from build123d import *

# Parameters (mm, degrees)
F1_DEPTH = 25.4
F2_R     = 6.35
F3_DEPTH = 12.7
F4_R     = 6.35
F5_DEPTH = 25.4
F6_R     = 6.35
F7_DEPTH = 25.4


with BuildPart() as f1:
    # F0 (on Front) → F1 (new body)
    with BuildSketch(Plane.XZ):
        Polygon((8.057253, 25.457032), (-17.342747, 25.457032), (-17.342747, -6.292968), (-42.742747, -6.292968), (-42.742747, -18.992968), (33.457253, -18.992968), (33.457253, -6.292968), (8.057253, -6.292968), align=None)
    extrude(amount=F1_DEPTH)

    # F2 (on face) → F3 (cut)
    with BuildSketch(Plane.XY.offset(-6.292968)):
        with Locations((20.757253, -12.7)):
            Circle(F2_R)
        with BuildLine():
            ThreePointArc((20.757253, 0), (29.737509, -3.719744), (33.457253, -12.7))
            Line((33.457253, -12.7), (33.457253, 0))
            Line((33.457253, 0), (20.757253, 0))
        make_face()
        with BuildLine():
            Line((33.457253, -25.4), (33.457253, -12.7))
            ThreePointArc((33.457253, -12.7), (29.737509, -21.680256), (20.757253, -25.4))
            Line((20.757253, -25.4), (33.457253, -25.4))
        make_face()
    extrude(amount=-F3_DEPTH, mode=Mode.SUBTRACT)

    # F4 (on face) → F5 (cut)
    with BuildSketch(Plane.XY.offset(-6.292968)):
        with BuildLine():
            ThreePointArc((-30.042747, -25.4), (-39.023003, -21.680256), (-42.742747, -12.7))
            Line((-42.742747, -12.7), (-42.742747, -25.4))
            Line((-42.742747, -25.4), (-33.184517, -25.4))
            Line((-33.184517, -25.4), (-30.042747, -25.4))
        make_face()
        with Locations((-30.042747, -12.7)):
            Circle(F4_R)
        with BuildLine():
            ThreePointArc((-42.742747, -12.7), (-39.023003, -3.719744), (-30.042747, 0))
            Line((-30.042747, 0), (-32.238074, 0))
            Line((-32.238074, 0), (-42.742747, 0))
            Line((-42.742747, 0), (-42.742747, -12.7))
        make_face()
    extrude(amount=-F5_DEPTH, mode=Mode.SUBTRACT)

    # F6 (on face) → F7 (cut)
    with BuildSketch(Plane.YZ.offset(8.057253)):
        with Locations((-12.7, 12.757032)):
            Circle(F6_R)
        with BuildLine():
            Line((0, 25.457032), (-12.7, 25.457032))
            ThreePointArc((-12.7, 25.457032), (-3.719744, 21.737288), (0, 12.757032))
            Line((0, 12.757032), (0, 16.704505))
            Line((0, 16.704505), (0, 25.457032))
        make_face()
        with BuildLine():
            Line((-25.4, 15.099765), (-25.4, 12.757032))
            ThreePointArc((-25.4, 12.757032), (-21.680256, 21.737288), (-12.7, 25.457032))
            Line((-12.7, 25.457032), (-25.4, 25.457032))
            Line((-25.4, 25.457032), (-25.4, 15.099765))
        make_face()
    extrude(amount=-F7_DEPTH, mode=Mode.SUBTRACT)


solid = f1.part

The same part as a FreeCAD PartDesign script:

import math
import FreeCAD as App
import Part
import Sketcher

V = App.Vector
Q = App.Units.Quantity

doc = App.newDocument("Part")
params = doc.addObject("Spreadsheet::Sheet", "Params")
for row, (alias, value) in enumerate([
    ("sketch1_width", "1 in"),
    ("sketch1_height", "0.5 in"),
    ("sketch1_height2", "1.25 in"),
    ("pad1_length", "1 in"),
    ("sketch2_diameter", "0.5 in"),
    ("sketch2_radius", "0.5 in"),
    ("pocket1_length", "0.5 in"),
    ("sketch3_diameter", "0.5 in"),
    ("sketch3_radius", "0.5 in"),
    ("pocket2_length", "1 in"),
    ("sketch4_diameter", "0.5 in"),
    ("sketch4_radius", "0.5 in"),
    ("pocket3_length", "1 in"),
], start=1):
    params.set(f"A{row}", alias)
    params.set(f"B{row}", "=" + value)
    params.setAlias(f"B{row}", alias)

body = doc.addObject("PartDesign::Body", "Body")

sketch1 = doc.addObject("Sketcher::SketchObject", "Sketch")
body.addObject(sketch1)
sketch1.AttachmentSupport = (doc.XZ_Plane, [""])
sketch1.MapMode = "FlatFace"
sketch1.addGeometry([
    Part.LineSegment(V(8, 25, 0), V(-17, 25, 0)),
    Part.LineSegment(V(-17, 25, 0), V(-17, -6, 0)),
    Part.LineSegment(V(-17, -6, 0), V(-43, -6, 0)),
    Part.LineSegment(V(-43, -6, 0), V(-43, -19, 0)),
    Part.LineSegment(V(-43, -19, 0), V(33, -19, 0)),
    Part.LineSegment(V(33, -19, 0), V(33, -6, 0)),
    Part.LineSegment(V(33, -6, 0), V(8, -6, 0)),
    Part.LineSegment(V(8, -6, 0), V(8, 25, 0)),
], False)
sketch1.addConstraint([
    Sketcher.Constraint("Coincident", 0, 2, 1, 1),
    Sketcher.Constraint("Coincident", 1, 2, 2, 1),
    Sketcher.Constraint("Coincident", 2, 2, 3, 1),
    Sketcher.Constraint("Coincident", 3, 2, 4, 1),
    Sketcher.Constraint("Coincident", 4, 2, 5, 1),
    Sketcher.Constraint("Coincident", 5, 2, 6, 1),
    Sketcher.Constraint("Coincident", 6, 2, 7, 1),
    Sketcher.Constraint("Coincident", 7, 2, 0, 1),
    Sketcher.Constraint("Horizontal", 0),
    Sketcher.Constraint("Vertical", 1),
    Sketcher.Constraint("Horizontal", 2),
    Sketcher.Constraint("Vertical", 3),
    Sketcher.Constraint("Horizontal", 4),
    Sketcher.Constraint("Vertical", 5),
    Sketcher.Constraint("Horizontal", 6),
    Sketcher.Constraint("Vertical", 7),
    Sketcher.Constraint("Horizontal", 2, 2, 5, 2),
    Sketcher.Constraint("Equal", 0, 2),
    Sketcher.Constraint("Equal", 2, 6),
    Sketcher.Constraint("DistanceX", 0, 2, 0, 1, Q("1 in")),
    Sketcher.Constraint("DistanceY", 3, 2, 3, 1, Q("0.5 in")),
    Sketcher.Constraint("DistanceY", 1, 2, 1, 1, Q("1.25 in")),
    Sketcher.Constraint("DistanceY", 3, 2, -1, 1, 18.992968),
    Sketcher.Constraint("DistanceX", 0, 2, -1, 1, 17.342747),
])
sketch1.setExpression("Constraints[19]", "Params.sketch1_width")
sketch1.setExpression("Constraints[20]", "Params.sketch1_height")
sketch1.setExpression("Constraints[21]", "Params.sketch1_height2")
pad1 = doc.addObject("PartDesign::Pad", "Pad")
body.addObject(pad1)
pad1.Profile = sketch1
pad1.setExpression("Length", "Params.pad1_length")

sketch2 = doc.addObject("Sketcher::SketchObject", "Sketch001")
body.addObject(sketch2)
sketch2.AttachmentSupport = (doc.XY_Plane, [""])
sketch2.MapMode = "FlatFace"
sketch2.AttachmentOffset = App.Placement(V(0, 0, -6.292968), App.Rotation())
sketch2.addGeometry([
    Part.Circle(V(21, -13, 0), V(0, 0, 1), 6),
    Part.ArcOfCircle(Part.Circle(V(21, -13, 0), V(0, 0, 1), 13), math.radians(0), math.radians(90)),
    Part.LineSegment(V(33, -13, 0), V(33, 0, 0)),
    Part.LineSegment(V(33, 0, 0), V(21, 0, 0)),
    Part.LineSegment(V(33, -25, 0), V(33, -13, 0)),
    Part.ArcOfCircle(Part.Circle(V(21, -13, 0), V(0, 0, 1), 13), math.radians(-90), math.radians(0)),
    Part.LineSegment(V(21, -25, 0), V(33, -25, 0)),
], False)
sketch2.addConstraint([
    Sketcher.Constraint("Tangent", 1, 1, 2, 1),
    Sketcher.Constraint("Coincident", 2, 2, 3, 1),
    Sketcher.Constraint("Tangent", 3, 2, 1, 2),
    Sketcher.Constraint("Tangent", 4, 2, 5, 2),
    Sketcher.Constraint("Tangent", 5, 1, 6, 1),
    Sketcher.Constraint("Coincident", 6, 2, 4, 1),
    Sketcher.Constraint("Vertical", 2),
    Sketcher.Constraint("Horizontal", 3),
    Sketcher.Constraint("Vertical", 4),
    Sketcher.Constraint("Horizontal", 6),
    Sketcher.Constraint("Coincident", 1, 3, 0, 3),
    Sketcher.Constraint("Coincident", 5, 3, 0, 3),
    Sketcher.Constraint("Equal", 1, 5),
    Sketcher.Constraint("PointOnObject", 2, 2, -1),
    Sketcher.Constraint("Diameter", 0, Q("0.5 in")),
    Sketcher.Constraint("Radius", 1, Q("0.5 in")),
    Sketcher.Constraint("DistanceX", -1, 1, 0, 3, 20.757253),
])
sketch2.setExpression("Constraints[14]", "Params.sketch2_diameter")
sketch2.setExpression("Constraints[15]", "Params.sketch2_radius")
pocket1 = doc.addObject("PartDesign::Pocket", "Pocket")
body.addObject(pocket1)
pocket1.Profile = sketch2
pocket1.setExpression("Length", "Params.pocket1_length")

sketch3 = doc.addObject("Sketcher::SketchObject", "Sketch002")
body.addObject(sketch3)
sketch3.AttachmentSupport = (doc.XY_Plane, [""])
sketch3.MapMode = "FlatFace"
sketch3.AttachmentOffset = App.Placement(V(0, 0, -6.292968), App.Rotation())
sketch3.addGeometry([
    Part.ArcOfCircle(Part.Circle(V(-30, -13, 0), V(0, 0, 1), 13), math.radians(-180), math.radians(-90)),
    Part.LineSegment(V(-43, -13, 0), V(-43, -25, 0)),
    Part.LineSegment(V(-43, -25, 0), V(-30, -25, 0)),
    Part.Circle(V(-30, -13, 0), V(0, 0, 1), 6),
    Part.ArcOfCircle(Part.Circle(V(-30, -13, 0), V(0, 0, 1), 13), math.radians(90), math.radians(180)),
    Part.LineSegment(V(-30, 0, 0), V(-43, 0, 0)),
    Part.LineSegment(V(-43, 0, 0), V(-43, -13, 0)),
], False)
sketch3.addConstraint([
    Sketcher.Constraint("Tangent", 0, 1, 1, 1),
    Sketcher.Constraint("Coincident", 1, 2, 2, 1),
    Sketcher.Constraint("Tangent", 2, 2, 0, 2),
    Sketcher.Constraint("Tangent", 4, 1, 5, 1),
    Sketcher.Constraint("Coincident", 5, 2, 6, 1),
    Sketcher.Constraint("Tangent", 6, 2, 4, 2),
    Sketcher.Constraint("Vertical", 1),
    Sketcher.Constraint("Horizontal", 2),
    Sketcher.Constraint("Horizontal", 5),
    Sketcher.Constraint("Vertical", 6),
    Sketcher.Constraint("Coincident", 3, 3, 0, 3),
    Sketcher.Constraint("Coincident", 4, 3, 0, 3),
    Sketcher.Constraint("Equal", 0, 4),
    Sketcher.Constraint("PointOnObject", 4, 1, -1),
    Sketcher.Constraint("Diameter", 3, Q("0.5 in")),
    Sketcher.Constraint("Radius", 0, Q("0.5 in")),
    Sketcher.Constraint("DistanceX", 0, 3, -1, 1, 30.042747),
])
sketch3.setExpression("Constraints[14]", "Params.sketch3_diameter")
sketch3.setExpression("Constraints[15]", "Params.sketch3_radius")
pocket2 = doc.addObject("PartDesign::Pocket", "Pocket001")
body.addObject(pocket2)
pocket2.Profile = sketch3
pocket2.setExpression("Length", "Params.pocket2_length")

sketch4 = doc.addObject("Sketcher::SketchObject", "Sketch003")
body.addObject(sketch4)
sketch4.AttachmentSupport = (doc.YZ_Plane, [""])
sketch4.MapMode = "FlatFace"
sketch4.AttachmentOffset = App.Placement(V(0, 0, 8.057253), App.Rotation())
sketch4.addGeometry([
    Part.Circle(V(-13, 13, 0), V(0, 0, 1), 6),
    Part.LineSegment(V(0, 25, 0), V(-13, 25, 0)),
    Part.ArcOfCircle(Part.Circle(V(-13, 13, 0), V(0, 0, 1), 13), math.radians(0), math.radians(90)),
    Part.LineSegment(V(0, 13, 0), V(0, 25, 0)),
    Part.ArcOfCircle(Part.Circle(V(-13, 13, 0), V(0, 0, 1), 13), math.radians(90), math.radians(180)),
    Part.LineSegment(V(-13, 25, 0), V(-25, 25, 0)),
    Part.LineSegment(V(-25, 25, 0), V(-25, 13, 0)),
], False)
sketch4.addConstraint([
    Sketcher.Constraint("Tangent", 1, 2, 2, 2),
    Sketcher.Constraint("Tangent", 2, 1, 3, 1),
    Sketcher.Constraint("Coincident", 3, 2, 1, 1),
    Sketcher.Constraint("Tangent", 4, 1, 5, 1),
    Sketcher.Constraint("Coincident", 5, 2, 6, 1),
    Sketcher.Constraint("Tangent", 6, 2, 4, 2),
    Sketcher.Constraint("Horizontal", 1),
    Sketcher.Constraint("Vertical", 3),
    Sketcher.Constraint("Horizontal", 5),
    Sketcher.Constraint("Vertical", 6),
    Sketcher.Constraint("Coincident", 2, 3, 0, 3),
    Sketcher.Constraint("Coincident", 4, 3, 0, 3),
    Sketcher.Constraint("Equal", 2, 4),
    Sketcher.Constraint("PointOnObject", 2, 1, -2),
    Sketcher.Constraint("Diameter", 0, Q("0.5 in")),
    Sketcher.Constraint("Radius", 2, Q("0.5 in")),
    Sketcher.Constraint("DistanceY", -1, 1, 2, 3, 12.757032),
])
sketch4.setExpression("Constraints[14]", "Params.sketch4_diameter")
sketch4.setExpression("Constraints[15]", "Params.sketch4_radius")
pocket3 = doc.addObject("PartDesign::Pocket", "Pocket002")
body.addObject(pocket3)
pocket3.Profile = sketch4
pocket3.setExpression("Length", "Params.pocket3_length")

doc.recompute()
